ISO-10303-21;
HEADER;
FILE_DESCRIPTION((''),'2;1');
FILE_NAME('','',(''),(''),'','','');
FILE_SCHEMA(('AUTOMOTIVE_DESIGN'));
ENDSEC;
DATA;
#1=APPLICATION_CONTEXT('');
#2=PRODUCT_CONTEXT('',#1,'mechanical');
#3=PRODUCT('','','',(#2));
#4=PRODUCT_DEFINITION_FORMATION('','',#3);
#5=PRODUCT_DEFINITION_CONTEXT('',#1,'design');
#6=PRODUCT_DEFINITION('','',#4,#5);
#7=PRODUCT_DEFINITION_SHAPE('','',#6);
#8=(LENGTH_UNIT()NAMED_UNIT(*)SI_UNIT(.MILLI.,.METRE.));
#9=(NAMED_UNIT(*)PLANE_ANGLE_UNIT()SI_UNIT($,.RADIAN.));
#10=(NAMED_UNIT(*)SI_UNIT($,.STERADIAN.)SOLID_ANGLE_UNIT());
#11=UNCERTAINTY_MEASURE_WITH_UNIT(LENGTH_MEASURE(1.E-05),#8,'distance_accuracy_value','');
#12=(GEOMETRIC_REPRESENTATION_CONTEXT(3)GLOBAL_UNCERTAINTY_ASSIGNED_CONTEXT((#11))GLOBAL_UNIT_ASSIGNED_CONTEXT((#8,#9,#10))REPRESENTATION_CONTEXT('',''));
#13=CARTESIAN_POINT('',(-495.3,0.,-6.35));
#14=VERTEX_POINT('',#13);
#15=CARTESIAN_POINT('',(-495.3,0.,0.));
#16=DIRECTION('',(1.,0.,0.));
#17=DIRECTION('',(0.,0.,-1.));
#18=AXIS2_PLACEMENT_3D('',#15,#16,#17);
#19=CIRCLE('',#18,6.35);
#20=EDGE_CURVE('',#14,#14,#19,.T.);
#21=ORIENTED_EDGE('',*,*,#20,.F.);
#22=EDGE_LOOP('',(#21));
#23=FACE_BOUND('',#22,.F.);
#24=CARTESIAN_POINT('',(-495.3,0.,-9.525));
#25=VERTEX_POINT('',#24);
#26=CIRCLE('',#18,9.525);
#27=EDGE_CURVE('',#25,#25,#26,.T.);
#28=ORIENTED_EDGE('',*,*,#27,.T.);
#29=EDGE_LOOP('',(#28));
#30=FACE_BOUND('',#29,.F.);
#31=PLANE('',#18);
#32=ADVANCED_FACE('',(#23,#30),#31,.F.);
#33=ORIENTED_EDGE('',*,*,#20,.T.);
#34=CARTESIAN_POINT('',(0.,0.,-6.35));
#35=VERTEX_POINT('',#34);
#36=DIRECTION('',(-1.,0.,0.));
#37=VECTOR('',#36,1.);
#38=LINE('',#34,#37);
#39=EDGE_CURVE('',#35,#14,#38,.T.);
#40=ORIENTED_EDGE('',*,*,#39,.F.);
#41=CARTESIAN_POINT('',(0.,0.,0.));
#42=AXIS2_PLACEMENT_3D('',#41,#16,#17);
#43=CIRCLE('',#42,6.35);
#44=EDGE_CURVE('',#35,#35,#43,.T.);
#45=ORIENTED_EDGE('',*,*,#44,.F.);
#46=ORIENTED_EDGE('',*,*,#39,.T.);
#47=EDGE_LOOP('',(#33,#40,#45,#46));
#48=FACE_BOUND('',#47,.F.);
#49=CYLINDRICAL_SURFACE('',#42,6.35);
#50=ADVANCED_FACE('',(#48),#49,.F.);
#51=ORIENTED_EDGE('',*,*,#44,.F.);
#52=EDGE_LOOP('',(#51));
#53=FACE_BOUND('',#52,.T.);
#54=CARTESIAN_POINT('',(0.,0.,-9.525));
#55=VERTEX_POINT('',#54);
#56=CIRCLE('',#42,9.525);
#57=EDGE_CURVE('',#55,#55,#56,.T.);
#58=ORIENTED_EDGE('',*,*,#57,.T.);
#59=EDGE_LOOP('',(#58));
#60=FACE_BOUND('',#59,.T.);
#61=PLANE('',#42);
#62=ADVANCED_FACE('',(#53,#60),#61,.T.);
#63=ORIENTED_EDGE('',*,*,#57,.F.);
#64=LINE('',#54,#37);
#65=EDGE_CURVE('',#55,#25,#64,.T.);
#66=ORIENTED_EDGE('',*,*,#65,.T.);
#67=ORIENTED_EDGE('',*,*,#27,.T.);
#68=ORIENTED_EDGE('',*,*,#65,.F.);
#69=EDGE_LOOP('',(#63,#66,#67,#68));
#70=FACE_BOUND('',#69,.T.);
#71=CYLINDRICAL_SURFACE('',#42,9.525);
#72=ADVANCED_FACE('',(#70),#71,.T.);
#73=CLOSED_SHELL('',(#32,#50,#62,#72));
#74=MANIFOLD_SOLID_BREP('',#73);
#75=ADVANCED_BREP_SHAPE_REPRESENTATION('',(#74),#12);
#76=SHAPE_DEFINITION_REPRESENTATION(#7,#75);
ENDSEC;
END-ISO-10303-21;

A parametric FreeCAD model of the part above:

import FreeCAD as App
import Part
import Sketcher

V = App.Vector
Q = App.Units.Quantity

doc = App.newDocument("Part")
body = doc.addObject("PartDesign::Body", "Body")

# Sketch on YZ plane
sketch1 = body.newObject("Sketcher::SketchObject", "Sketch")
sketch1.AttachmentSupport = (doc.getObject("YZ_Plane"), [""])
sketch1.MapMode = "FlatFace"
sketch1.addGeometry(Part.Circle(V(0, 0, 0), V(0, 0, 1), 10), False)
sketch1.addGeometry(Part.Circle(V(0, 0, 0), V(0, 0, 1), 6), False)
sketch1.addConstraint(Sketcher.Constraint("Coincident", 0, 3, -1, 1))
sketch1.addConstraint(Sketcher.Constraint("Coincident", 1, 3, -1, 1))
sketch1.addConstraint(Sketcher.Constraint("Diameter", 1, Q("0.5 in")))
sketch1.addConstraint(Sketcher.Constraint("Diameter", 0, Q("0.75 in")))
pad1 = body.newObject("PartDesign::Pad", "Pad")
pad1.Profile = sketch1
pad1.Length = Q("19.5 in")
pad1.Reversed = True

doc.recompute()
